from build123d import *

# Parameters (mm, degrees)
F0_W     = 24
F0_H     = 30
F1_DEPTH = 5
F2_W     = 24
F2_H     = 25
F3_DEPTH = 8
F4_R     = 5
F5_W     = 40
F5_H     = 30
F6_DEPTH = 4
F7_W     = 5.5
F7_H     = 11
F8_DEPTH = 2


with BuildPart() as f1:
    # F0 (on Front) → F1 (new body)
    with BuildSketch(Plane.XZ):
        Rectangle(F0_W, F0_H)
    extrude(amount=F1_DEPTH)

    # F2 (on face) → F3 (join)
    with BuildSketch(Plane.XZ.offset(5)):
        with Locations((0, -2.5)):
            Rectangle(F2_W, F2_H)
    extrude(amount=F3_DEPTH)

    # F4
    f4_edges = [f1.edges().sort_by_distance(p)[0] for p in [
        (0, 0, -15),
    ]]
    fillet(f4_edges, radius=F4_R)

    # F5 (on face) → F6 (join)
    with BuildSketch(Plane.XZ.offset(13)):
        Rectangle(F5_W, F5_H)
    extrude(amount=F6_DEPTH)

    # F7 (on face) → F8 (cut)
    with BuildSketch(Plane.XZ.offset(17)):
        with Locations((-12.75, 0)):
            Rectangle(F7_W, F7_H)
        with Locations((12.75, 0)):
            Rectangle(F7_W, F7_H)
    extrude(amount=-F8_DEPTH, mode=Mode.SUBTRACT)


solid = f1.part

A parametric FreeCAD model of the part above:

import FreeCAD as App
import Part
import Sketcher
from FreeCAD import Vector
Q = App.Units.Quantity


def edges_at(feature, points):
    """Names of the edges that pass closest to the given points."""
    edges = feature.Shape.Edges
    near = lambda p: min(range(len(edges)), key=lambda i: edges[i].distToShape(Part.Vertex(*p))[0])
    return sorted({f"Edge{near(p) + 1}" for p in points})

doc = App.newDocument("Part")
params = doc.addObject("Spreadsheet::Sheet", "Params")
for row, (alias, value) in enumerate([
    ("sketch1_width", "24 mm"),
    ("sketch1_height", "30 mm"),
    ("pad1_length", "5 mm"),
    ("sketch2_width", "24 mm"),
    ("sketch2_height", "25 mm"),
    ("pad2_length", "8 mm"),
    ("fillet_radius", "5 mm"),
    ("sketch3_width", "40 mm"),
    ("sketch3_height", "30 mm"),
    ("pad3_length", "4 mm"),
    ("sketch4_height", "11 mm"),
    ("sketch4_width", "5.5 mm"),
    ("pocket1_length", "2 mm"),
], start=1):
    params.set(f"A{row}", alias)
    params.set(f"B{row}", "=" + value)
    params.setAlias(f"B{row}", alias)

body = doc.addObject("PartDesign::Body", "Body")

# Sketch on XZ plane
sketch1 = body.newObject("Sketcher::SketchObject", "Sketch")
sketch1.AttachmentSupport = (doc.getObject("XZ_Plane"), [""])
sketch1.MapMode = "FlatFace"
sketch1.addGeometry(Part.LineSegment(Vector(-12, 15, 0), Vector(-12, -15, 0)), False)
sketch1.addGeometry(Part.LineSegment(Vector(-12, -15, 0), Vector(12, -15, 0)), False)
sketch1.addGeometry(Part.LineSegment(Vector(12, -15, 0), Vector(12, 15, 0)), False)
sketch1.addGeometry(Part.LineSegment(Vector(12, 15, 0), Vector(-12, 15, 0)), False)
sketch1.addConstraint(Sketcher.Constraint("Coincident", 0, 2, 1, 1))
sketch1.addConstraint(Sketcher.Constraint("Coincident", 1, 2, 2, 1))
sketch1.addConstraint(Sketcher.Constraint("Coincident", 2, 2, 3, 1))
sketch1.addConstraint(Sketcher.Constraint("Coincident", 3, 2, 0, 1))
sketch1.addConstraint(Sketcher.Constraint("Vertical", 0))
sketch1.addConstraint(Sketcher.Constraint("Horizontal", 1))
sketch1.addConstraint(Sketcher.Constraint("Vertical", 2))
sketch1.addConstraint(Sketcher.Constraint("Horizontal", 3))
sketch1.addConstraint(Sketcher.Constraint("Symmetric", 0, 2, 2, 2, -1, 1))
sketch1.addConstraint(Sketcher.Constraint("DistanceX", 1, 1, 1, 2, Q("24 mm")))
sketch1.addConstraint(Sketcher.Constraint("DistanceY", 0, 2, 0, 1, Q("30 mm")))
sketch1.setExpression("Constraints[9]", "Params.sketch1_width")
sketch1.setExpression("Constraints[10]", "Params.sketch1_height")
pad1 = body.newObject("PartDesign::Pad", "Pad")
pad1.Profile = sketch1
pad1.setExpression("Length", "Params.pad1_length")

# Sketch on XZ plane
sketch2 = body.newObject("Sketcher::SketchObject", "Sketch001")
sketch2.AttachmentSupport = (doc.getObject("XZ_Plane"), [""])
sketch2.MapMode = "FlatFace"
sketch2.AttachmentOffset = App.Placement(Vector(0, 0, 5), App.Rotation())
sketch2.addGeometry(Part.LineSegment(Vector(-12, 10, 0), Vector(-12, -15, 0)), False)
sketch2.addGeometry(Part.LineSegment(Vector(-12, -15, 0), Vector(12, -15, 0)), False)
sketch2.addGeometry(Part.LineSegment(Vector(12, -15, 0), Vector(12, 10, 0)), False)
sketch2.addGeometry(Part.LineSegment(Vector(12, 10, 0), Vector(-12, 10, 0)), False)
sketch2.addConstraint(Sketcher.Constraint("Coincident", 0, 2, 1, 1))
sketch2.addConstraint(Sketcher.Constraint("Coincident", 1, 2, 2, 1))
sketch2.addConstraint(Sketcher.Constraint("Coincident", 2, 2, 3, 1))
sketch2.addConstraint(Sketcher.Constraint("Coincident", 3, 2, 0, 1))
sketch2.addConstraint(Sketcher.Constraint("Vertical", 0))
sketch2.addConstraint(Sketcher.Constraint("Horizontal", 1))
sketch2.addConstraint(Sketcher.Constraint("Vertical", 2))
sketch2.addConstraint(Sketcher.Constraint("Horizontal", 3))
sketch2.addConstraint(Sketcher.Constraint("DistanceX", 1, 1, 1, 2, Q("24 mm")))
sketch2.addConstraint(Sketcher.Constraint("DistanceY", 0, 2, 0, 1, Q("25 mm")))
sketch2.addConstraint(Sketcher.Constraint("DistanceX", 0, 2, -1, 1, Q("12 mm")))
sketch2.addConstraint(Sketcher.Constraint("DistanceY", 0, 2, -1, 1, Q("15 mm")))
sketch2.setExpression("Constraints[8]", "Params.sketch2_width")
sketch2.setExpression("Constraints[9]", "Params.sketch2_height")
pad2 = body.newObject("PartDesign::Pad", "Pad001")
pad2.Profile = sketch2
pad2.setExpression("Length", "Params.pad2_length")
doc.recompute()

fillet = body.newObject("PartDesign::Fillet", "Fillet")
fillet.Base = (pad2, edges_at(pad2, [(0, 0, -15)]))
fillet.setExpression("Radius", "Params.fillet_radius")

# Sketch on XZ plane
sketch3 = body.newObject("Sketcher::SketchObject", "Sketch002")
sketch3.AttachmentSupport = (doc.getObject("XZ_Plane"), [""])
sketch3.MapMode = "FlatFace"
sketch3.AttachmentOffset = App.Placement(Vector(0, 0, 13), App.Rotation())
sketch3.addGeometry(Part.LineSegment(Vector(-20, 15, 0), Vector(-20, -15, 0)), False)
sketch3.addGeometry(Part.LineSegment(Vector(-20, -15, 0), Vector(20, -15, 0)), False)
sketch3.addGeometry(Part.LineSegment(Vector(20, -15, 0), Vector(20, 15, 0)), False)
sketch3.addGeometry(Part.LineSegment(Vector(20, 15, 0), Vector(-20, 15, 0)), False)
sketch3.addConstraint(Sketcher.Constraint("Coincident", 0, 2, 1, 1))
sketch3.addConstraint(Sketcher.Constraint("Coincident", 1, 2, 2, 1))
sketch3.addConstraint(Sketcher.Constraint("Coincident", 2, 2, 3, 1))
sketch3.addConstraint(Sketcher.Constraint("Coincident", 3, 2, 0, 1))
sketch3.addConstraint(Sketcher.Constraint("Vertical", 0))
sketch3.addConstraint(Sketcher.Constraint("Horizontal", 1))
sketch3.addConstraint(Sketcher.Constraint("Vertical", 2))
sketch3.addConstraint(Sketcher.Constraint("Horizontal", 3))
sketch3.addConstraint(Sketcher.Constraint("Symmetric", 0, 2, 2, 2, -1, 1))
sketch3.addConstraint(Sketcher.Constraint("DistanceX", 1, 1, 1, 2, Q("40 mm")))
sketch3.addConstraint(Sketcher.Constraint("DistanceY", 0, 2, 0, 1, Q("30 mm")))
sketch3.setExpression("Constraints[9]", "Params.sketch3_width")
sketch3.setExpression("Constraints[10]", "Params.sketch3_height")
pad3 = body.newObject("PartDesign::Pad", "Pad002")
pad3.Profile = sketch3
pad3.setExpression("Length", "Params.pad3_length")

# Sketch on XZ plane
sketch4 = body.newObject("Sketcher::SketchObject", "Sketch003")
sketch4.AttachmentSupport = (doc.getObject("XZ_Plane"), [""])
sketch4.MapMode = "FlatFace"
sketch4.AttachmentOffset = App.Placement(Vector(0, 0, 17), App.Rotation())
sketch4.addGeometry(Part.LineSegment(Vector(-16, 6, 0), Vector(-16, -6, 0)), False)
sketch4.addGeometry(Part.LineSegment(Vector(-16, -6, 0), Vector(-10, -6, 0)), False)
sketch4.addGeometry(Part.LineSegment(Vector(-10, -6, 0), Vector(-10, 6, 0)), False)
sketch4.addGeometry(Part.LineSegment(Vector(-10, 6, 0), Vector(-16, 6, 0)), False)
sketch4.addGeometry(Part.LineSegment(Vector(10, 6, 0), Vector(10, -6, 0)), False)
sketch4.addGeometry(Part.LineSegment(Vector(10, -6, 0), Vector(16, -6, 0)), False)
sketch4.addGeometry(Part.LineSegment(Vector(16, -6, 0), Vector(16, 6, 0)), False)
sketch4.addGeometry(Part.LineSegment(Vector(16, 6, 0), Vector(10, 6, 0)), False)
sketch4.addConstraint(Sketcher.Constraint("Coincident", 0, 2, 1, 1))
sketch4.addConstraint(Sketcher.Constraint("Coincident", 1, 2, 2, 1))
sketch4.addConstraint(Sketcher.Constraint("Coincident", 2, 2, 3, 1))
sketch4.addConstraint(Sketcher.Constraint("Coincident", 3, 2, 0, 1))
sketch4.addConstraint(Sketcher.Constraint("Coincident", 4, 2, 5, 1))
sketch4.addConstraint(Sketcher.Constraint("Coincident", 5, 2, 6, 1))
sketch4.addConstraint(Sketcher.Constraint("Coincident", 6, 2, 7, 1))
sketch4.addConstraint(Sketcher.Constraint("Coincident", 7, 2, 4, 1))
sketch4.addConstraint(Sketcher.Constraint("Vertical", 0))
sketch4.addConstraint(Sketcher.Constraint("Horizontal", 1))
sketch4.addConstraint(Sketcher.Constraint("Vertical", 2))
sketch4.addConstraint(Sketcher.Constraint("Horizontal", 3))
sketch4.addConstraint(Sketcher.Constraint("Vertical", 4))
sketch4.addConstraint(Sketcher.Constraint("Horizontal", 5))
sketch4.addConstraint(Sketcher.Constraint("Vertical", 6))
sketch4.addConstraint(Sketcher.Constraint("Horizontal", 7))
sketch4.addConstraint(Sketcher.Constraint("Symmetric", 2, 2, 4, 2, -1, 1))
sketch4.addConstraint(Sketcher.Constraint("Symmetric", 0, 2, 6, 2, -1, 1))
sketch4.addConstraint(Sketcher.Constraint("Horizontal", 1, 2, 4, 2))
sketch4.addConstraint(Sketcher.Constraint("DistanceY", 0, 2, 0, 1, Q("11 mm")))
sketch4.addConstraint(Sketcher.Constraint("DistanceX", 1, 1, 1, 2, Q("5.5 mm")))
sketch4.addConstraint(Sketcher.Constraint("DistanceX", 1, 2, -1, 1, Q("10 mm")))
sketch4.setExpression("Constraints[19]", "Params.sketch4_height")
sketch4.setExpression("Constraints[20]", "Params.sketch4_width")
pocket1 = body.newObject("PartDesign::Pocket", "Pocket")
pocket1.Profile = sketch4
pocket1.setExpression("Length", "Params.pocket1_length")

doc.recompute()
